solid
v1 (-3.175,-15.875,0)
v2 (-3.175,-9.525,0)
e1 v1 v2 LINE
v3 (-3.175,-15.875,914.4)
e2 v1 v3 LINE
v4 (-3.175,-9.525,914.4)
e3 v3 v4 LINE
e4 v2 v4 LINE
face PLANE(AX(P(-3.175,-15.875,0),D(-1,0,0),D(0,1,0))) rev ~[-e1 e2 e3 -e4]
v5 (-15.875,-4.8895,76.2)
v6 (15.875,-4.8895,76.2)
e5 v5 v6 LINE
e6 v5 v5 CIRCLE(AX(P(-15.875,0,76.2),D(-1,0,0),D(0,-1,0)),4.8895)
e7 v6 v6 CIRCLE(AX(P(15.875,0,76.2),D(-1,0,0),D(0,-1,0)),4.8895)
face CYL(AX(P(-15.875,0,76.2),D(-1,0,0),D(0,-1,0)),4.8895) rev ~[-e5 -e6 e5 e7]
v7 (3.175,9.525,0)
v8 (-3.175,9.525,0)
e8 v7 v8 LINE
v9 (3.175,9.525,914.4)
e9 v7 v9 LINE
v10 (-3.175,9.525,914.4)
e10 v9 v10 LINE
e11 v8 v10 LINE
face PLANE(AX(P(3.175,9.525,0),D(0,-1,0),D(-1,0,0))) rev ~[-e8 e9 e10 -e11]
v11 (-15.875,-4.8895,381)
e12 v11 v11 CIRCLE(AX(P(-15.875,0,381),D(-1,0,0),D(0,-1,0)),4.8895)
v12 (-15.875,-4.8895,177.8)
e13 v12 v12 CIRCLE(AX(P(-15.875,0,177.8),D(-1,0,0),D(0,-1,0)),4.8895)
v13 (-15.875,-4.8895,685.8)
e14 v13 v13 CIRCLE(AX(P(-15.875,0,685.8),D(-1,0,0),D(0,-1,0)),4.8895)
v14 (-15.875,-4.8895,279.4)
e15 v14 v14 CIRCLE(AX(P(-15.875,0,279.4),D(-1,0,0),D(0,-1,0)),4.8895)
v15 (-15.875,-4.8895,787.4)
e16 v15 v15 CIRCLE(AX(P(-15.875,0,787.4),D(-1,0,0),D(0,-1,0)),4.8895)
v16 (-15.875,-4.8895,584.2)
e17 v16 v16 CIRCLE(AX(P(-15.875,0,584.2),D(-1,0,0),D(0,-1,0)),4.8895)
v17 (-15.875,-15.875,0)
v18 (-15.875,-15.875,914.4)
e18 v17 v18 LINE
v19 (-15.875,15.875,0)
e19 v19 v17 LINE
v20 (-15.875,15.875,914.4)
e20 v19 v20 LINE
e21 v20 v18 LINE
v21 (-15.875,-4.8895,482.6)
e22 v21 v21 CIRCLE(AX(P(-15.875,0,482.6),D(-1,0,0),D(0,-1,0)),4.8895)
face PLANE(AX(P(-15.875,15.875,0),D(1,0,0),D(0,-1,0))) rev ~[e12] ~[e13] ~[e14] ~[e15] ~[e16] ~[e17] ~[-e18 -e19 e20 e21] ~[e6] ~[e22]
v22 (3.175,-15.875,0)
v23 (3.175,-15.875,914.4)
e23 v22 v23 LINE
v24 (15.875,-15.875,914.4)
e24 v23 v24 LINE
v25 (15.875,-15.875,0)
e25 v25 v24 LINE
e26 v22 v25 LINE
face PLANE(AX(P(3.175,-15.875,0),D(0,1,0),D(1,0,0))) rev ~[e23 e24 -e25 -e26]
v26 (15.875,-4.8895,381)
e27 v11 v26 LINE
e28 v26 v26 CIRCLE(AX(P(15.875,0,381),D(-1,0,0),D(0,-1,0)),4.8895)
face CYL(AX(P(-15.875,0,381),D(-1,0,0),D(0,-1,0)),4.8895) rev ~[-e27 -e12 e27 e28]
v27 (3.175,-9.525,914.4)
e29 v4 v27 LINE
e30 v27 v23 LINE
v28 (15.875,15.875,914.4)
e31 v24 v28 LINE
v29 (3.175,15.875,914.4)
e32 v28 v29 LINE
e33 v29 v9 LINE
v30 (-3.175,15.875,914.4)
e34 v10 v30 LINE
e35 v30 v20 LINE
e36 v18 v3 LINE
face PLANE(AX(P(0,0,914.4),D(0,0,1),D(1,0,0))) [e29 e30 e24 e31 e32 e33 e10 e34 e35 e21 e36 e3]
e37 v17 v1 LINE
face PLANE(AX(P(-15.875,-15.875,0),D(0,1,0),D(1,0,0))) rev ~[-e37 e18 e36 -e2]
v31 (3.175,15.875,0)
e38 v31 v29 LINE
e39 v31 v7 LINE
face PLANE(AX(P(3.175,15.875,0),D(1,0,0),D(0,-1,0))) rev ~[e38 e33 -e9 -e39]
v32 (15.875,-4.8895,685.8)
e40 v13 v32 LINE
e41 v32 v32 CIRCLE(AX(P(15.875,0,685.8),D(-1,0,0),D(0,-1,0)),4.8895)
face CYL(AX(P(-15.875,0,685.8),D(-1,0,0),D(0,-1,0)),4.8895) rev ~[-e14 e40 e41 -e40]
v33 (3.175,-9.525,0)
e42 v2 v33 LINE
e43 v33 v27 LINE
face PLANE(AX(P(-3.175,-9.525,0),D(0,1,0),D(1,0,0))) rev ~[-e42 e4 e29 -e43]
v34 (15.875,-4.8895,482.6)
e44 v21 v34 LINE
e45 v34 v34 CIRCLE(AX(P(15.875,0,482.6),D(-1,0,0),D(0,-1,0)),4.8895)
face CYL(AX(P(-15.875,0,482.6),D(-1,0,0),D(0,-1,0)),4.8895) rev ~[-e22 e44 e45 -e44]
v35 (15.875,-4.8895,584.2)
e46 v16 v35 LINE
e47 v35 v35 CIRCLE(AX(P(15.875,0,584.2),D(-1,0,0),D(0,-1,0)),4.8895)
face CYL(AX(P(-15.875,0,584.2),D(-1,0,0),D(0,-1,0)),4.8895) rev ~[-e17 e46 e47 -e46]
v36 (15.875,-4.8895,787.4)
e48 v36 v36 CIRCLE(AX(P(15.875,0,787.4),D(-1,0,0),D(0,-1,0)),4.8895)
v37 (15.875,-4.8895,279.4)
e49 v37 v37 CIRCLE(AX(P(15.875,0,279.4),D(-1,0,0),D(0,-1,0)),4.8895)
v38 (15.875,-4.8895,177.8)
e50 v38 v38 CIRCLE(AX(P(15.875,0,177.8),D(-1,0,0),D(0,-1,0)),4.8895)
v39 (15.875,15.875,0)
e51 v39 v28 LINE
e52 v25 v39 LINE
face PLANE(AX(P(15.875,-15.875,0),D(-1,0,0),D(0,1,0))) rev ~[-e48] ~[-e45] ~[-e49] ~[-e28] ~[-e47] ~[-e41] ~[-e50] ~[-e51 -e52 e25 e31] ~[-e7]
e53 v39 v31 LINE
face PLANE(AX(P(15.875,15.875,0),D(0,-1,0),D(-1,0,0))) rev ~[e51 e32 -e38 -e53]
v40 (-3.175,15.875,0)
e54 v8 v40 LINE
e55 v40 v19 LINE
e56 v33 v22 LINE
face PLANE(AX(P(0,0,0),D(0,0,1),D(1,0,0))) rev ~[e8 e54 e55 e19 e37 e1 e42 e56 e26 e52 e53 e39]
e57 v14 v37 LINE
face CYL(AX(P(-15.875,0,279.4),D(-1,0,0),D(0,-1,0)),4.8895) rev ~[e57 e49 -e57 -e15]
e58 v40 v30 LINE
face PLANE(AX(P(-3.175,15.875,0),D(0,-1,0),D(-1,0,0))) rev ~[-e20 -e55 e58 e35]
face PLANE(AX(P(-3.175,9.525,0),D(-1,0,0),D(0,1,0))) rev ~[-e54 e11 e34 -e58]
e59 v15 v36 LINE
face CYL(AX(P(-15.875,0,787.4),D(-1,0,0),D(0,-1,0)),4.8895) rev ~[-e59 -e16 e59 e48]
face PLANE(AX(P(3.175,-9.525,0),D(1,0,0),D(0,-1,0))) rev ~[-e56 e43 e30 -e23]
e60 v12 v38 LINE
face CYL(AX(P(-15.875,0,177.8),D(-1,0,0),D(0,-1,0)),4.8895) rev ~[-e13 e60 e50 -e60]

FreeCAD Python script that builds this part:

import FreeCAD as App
import Part
import Sketcher
from FreeCAD import Vector
Q = App.Units.Quantity


def add_polygon(sketch, points):
    """Adds a closed chain of lines whose ends are joined by coincident constraints."""
    first, n = sketch.GeometryCount, len(points)
    for a, b in zip(points, points[1:] + points[:1]):
        sketch.addGeometry(Part.LineSegment(App.Vector(*a, 0), App.Vector(*b, 0)), False)
    for i in range(n):
        sketch.addConstraint(Sketcher.Constraint("Coincident", first + i, 2, first + (i + 1) % n, 1))

doc = App.newDocument("Part")
body = doc.addObject("PartDesign::Body", "Body")

sketch1 = doc.addObject("Sketcher::SketchObject", "Sketch")
body.addObject(sketch1)
sketch1.AttachmentSupport = (doc.XY_Plane, [""])
sketch1.MapMode = "FlatFace"
add_polygon(sketch1, [(3, -16), (16, -16), (16, 16), (3, 16), (3, 10), (-3, 10), (-3, 16), (-16, 16), (-16, -16), (-3, -16), (-3, -10), (3, -10)])
sketch1.addConstraint([
    Sketcher.Constraint("Horizontal", 0),
    Sketcher.Constraint("Vertical", 1),
    Sketcher.Constraint("Horizontal", 2),
    Sketcher.Constraint("Vertical", 3),
    Sketcher.Constraint("Horizontal", 4),
    Sketcher.Constraint("Vertical", 5),
    Sketcher.Constraint("Horizontal", 6),
    Sketcher.Constraint("Vertical", 7),
    Sketcher.Constraint("Horizontal", 8),
    Sketcher.Constraint("Vertical", 9),
    Sketcher.Constraint("Horizontal", 10),
    Sketcher.Constraint("Vertical", 11),
    Sketcher.Constraint("Symmetric", 0, 2, 6, 2, -1, 1),
    Sketcher.Constraint("Symmetric", 2, 2, 8, 2, -1, 1),
    Sketcher.Constraint("Symmetric", 4, 2, 10, 2, -1, 1),
    Sketcher.Constraint("Symmetric", 2, 2, 5, 2, -2),
    Sketcher.Constraint("Equal", 10, 3),
    Sketcher.Constraint("DistanceX", 0, 1, 0, 2, Q("0.5 in")),
    Sketcher.Constraint("DistanceY", 0, 2, 3, 2, Q("1 in")),
    Sketcher.Constraint("DistanceX", 4, 2, 4, 1, Q("0.25 in")),
])
pad1 = doc.addObject("PartDesign::Pad", "Pad")
body.addObject(pad1)
pad1.Profile = sketch1
pad1.Length = Q("36 in")

sketch2 = doc.addObject("Sketcher::SketchObject", "Sketch001")
body.addObject(sketch2)
sketch2.AttachmentSupport = (doc.YZ_Plane, [""])
sketch2.MapMode = "FlatFace"
sketch2.AttachmentOffset = App.Placement(Vector(0, 0, -0.625 * 25.4), App.Rotation())
sketch2.addGeometry([
    Part.Circle(Vector(0, 787.4, 0), Vector(0, 0, 1), 4.9),
    Part.Circle(Vector(0, 685.8, 0), Vector(0, 0, 1), 4.9),
    Part.Circle(Vector(0, 584.2, 0), Vector(0, 0, 1), 4.9),
    Part.Circle(Vector(0, 482.6, 0), Vector(0, 0, 1), 4.9),
    Part.Circle(Vector(0, 381, 0), Vector(0, 0, 1), 4.9),
    Part.Circle(Vector(0, 279.4, 0), Vector(0, 0, 1), 4.9),
    Part.Circle(Vector(0, 177.8, 0), Vector(0, 0, 1), 4.9),
    Part.Circle(Vector(0, 76.2, 0), Vector(0, 0, 1), 4.9),
], False)
sketch2.addConstraint([
    Sketcher.Constraint("Equal", 0, 1),
    Sketcher.Constraint("Equal", 1, 2),
    Sketcher.Constraint("Equal", 2, 3),
    Sketcher.Constraint("Equal", 3, 4),
    Sketcher.Constraint("Equal", 4, 5),
    Sketcher.Constraint("Equal", 5, 6),
    Sketcher.Constraint("Equal", 6, 7),
    Sketcher.Constraint("PointOnObject", 0, 3, -2),
    Sketcher.Constraint("PointOnObject", 1, 3, -2),
    Sketcher.Constraint("PointOnObject", 2, 3, -2),
    Sketcher.Constraint("PointOnObject", 3, 3, -2),
    Sketcher.Constraint("PointOnObject", 4, 3, -2),
    Sketcher.Constraint("PointOnObject", 5, 3, -2),
    Sketcher.Constraint("PointOnObject", 6, 3, -2),
    Sketcher.Constraint("PointOnObject", 7, 3, -2),
    Sketcher.Constraint("Diameter", 0, Q("0.385 in")),
    Sketcher.Constraint("DistanceY", -1, 1, 0, 3, Q("31 in")),
    Sketcher.Constraint("DistanceY", -1, 1, 1, 3, Q("27 in")),
    Sketcher.Constraint("DistanceY", -1, 1, 2, 3, Q("23 in")),
    Sketcher.Constraint("DistanceY", -1, 1, 3, 3, Q("19 in")),
    Sketcher.Constraint("DistanceY", -1, 1, 4, 3, Q("15 in")),
    Sketcher.Constraint("DistanceY", -1, 1, 5, 3, Q("11 in")),
    Sketcher.Constraint("DistanceY", -1, 1, 6, 3, Q("7 in")),
    Sketcher.Constraint("DistanceY", -1, 1, 7, 3, Q("3 in")),
])
pocket1 = doc.addObject("PartDesign::Pocket", "Pocket")
body.addObject(pocket1)
pocket1.Profile = sketch2
pocket1.Type = "ThroughAll"
pocket1.Reversed = True

doc.recompute()
